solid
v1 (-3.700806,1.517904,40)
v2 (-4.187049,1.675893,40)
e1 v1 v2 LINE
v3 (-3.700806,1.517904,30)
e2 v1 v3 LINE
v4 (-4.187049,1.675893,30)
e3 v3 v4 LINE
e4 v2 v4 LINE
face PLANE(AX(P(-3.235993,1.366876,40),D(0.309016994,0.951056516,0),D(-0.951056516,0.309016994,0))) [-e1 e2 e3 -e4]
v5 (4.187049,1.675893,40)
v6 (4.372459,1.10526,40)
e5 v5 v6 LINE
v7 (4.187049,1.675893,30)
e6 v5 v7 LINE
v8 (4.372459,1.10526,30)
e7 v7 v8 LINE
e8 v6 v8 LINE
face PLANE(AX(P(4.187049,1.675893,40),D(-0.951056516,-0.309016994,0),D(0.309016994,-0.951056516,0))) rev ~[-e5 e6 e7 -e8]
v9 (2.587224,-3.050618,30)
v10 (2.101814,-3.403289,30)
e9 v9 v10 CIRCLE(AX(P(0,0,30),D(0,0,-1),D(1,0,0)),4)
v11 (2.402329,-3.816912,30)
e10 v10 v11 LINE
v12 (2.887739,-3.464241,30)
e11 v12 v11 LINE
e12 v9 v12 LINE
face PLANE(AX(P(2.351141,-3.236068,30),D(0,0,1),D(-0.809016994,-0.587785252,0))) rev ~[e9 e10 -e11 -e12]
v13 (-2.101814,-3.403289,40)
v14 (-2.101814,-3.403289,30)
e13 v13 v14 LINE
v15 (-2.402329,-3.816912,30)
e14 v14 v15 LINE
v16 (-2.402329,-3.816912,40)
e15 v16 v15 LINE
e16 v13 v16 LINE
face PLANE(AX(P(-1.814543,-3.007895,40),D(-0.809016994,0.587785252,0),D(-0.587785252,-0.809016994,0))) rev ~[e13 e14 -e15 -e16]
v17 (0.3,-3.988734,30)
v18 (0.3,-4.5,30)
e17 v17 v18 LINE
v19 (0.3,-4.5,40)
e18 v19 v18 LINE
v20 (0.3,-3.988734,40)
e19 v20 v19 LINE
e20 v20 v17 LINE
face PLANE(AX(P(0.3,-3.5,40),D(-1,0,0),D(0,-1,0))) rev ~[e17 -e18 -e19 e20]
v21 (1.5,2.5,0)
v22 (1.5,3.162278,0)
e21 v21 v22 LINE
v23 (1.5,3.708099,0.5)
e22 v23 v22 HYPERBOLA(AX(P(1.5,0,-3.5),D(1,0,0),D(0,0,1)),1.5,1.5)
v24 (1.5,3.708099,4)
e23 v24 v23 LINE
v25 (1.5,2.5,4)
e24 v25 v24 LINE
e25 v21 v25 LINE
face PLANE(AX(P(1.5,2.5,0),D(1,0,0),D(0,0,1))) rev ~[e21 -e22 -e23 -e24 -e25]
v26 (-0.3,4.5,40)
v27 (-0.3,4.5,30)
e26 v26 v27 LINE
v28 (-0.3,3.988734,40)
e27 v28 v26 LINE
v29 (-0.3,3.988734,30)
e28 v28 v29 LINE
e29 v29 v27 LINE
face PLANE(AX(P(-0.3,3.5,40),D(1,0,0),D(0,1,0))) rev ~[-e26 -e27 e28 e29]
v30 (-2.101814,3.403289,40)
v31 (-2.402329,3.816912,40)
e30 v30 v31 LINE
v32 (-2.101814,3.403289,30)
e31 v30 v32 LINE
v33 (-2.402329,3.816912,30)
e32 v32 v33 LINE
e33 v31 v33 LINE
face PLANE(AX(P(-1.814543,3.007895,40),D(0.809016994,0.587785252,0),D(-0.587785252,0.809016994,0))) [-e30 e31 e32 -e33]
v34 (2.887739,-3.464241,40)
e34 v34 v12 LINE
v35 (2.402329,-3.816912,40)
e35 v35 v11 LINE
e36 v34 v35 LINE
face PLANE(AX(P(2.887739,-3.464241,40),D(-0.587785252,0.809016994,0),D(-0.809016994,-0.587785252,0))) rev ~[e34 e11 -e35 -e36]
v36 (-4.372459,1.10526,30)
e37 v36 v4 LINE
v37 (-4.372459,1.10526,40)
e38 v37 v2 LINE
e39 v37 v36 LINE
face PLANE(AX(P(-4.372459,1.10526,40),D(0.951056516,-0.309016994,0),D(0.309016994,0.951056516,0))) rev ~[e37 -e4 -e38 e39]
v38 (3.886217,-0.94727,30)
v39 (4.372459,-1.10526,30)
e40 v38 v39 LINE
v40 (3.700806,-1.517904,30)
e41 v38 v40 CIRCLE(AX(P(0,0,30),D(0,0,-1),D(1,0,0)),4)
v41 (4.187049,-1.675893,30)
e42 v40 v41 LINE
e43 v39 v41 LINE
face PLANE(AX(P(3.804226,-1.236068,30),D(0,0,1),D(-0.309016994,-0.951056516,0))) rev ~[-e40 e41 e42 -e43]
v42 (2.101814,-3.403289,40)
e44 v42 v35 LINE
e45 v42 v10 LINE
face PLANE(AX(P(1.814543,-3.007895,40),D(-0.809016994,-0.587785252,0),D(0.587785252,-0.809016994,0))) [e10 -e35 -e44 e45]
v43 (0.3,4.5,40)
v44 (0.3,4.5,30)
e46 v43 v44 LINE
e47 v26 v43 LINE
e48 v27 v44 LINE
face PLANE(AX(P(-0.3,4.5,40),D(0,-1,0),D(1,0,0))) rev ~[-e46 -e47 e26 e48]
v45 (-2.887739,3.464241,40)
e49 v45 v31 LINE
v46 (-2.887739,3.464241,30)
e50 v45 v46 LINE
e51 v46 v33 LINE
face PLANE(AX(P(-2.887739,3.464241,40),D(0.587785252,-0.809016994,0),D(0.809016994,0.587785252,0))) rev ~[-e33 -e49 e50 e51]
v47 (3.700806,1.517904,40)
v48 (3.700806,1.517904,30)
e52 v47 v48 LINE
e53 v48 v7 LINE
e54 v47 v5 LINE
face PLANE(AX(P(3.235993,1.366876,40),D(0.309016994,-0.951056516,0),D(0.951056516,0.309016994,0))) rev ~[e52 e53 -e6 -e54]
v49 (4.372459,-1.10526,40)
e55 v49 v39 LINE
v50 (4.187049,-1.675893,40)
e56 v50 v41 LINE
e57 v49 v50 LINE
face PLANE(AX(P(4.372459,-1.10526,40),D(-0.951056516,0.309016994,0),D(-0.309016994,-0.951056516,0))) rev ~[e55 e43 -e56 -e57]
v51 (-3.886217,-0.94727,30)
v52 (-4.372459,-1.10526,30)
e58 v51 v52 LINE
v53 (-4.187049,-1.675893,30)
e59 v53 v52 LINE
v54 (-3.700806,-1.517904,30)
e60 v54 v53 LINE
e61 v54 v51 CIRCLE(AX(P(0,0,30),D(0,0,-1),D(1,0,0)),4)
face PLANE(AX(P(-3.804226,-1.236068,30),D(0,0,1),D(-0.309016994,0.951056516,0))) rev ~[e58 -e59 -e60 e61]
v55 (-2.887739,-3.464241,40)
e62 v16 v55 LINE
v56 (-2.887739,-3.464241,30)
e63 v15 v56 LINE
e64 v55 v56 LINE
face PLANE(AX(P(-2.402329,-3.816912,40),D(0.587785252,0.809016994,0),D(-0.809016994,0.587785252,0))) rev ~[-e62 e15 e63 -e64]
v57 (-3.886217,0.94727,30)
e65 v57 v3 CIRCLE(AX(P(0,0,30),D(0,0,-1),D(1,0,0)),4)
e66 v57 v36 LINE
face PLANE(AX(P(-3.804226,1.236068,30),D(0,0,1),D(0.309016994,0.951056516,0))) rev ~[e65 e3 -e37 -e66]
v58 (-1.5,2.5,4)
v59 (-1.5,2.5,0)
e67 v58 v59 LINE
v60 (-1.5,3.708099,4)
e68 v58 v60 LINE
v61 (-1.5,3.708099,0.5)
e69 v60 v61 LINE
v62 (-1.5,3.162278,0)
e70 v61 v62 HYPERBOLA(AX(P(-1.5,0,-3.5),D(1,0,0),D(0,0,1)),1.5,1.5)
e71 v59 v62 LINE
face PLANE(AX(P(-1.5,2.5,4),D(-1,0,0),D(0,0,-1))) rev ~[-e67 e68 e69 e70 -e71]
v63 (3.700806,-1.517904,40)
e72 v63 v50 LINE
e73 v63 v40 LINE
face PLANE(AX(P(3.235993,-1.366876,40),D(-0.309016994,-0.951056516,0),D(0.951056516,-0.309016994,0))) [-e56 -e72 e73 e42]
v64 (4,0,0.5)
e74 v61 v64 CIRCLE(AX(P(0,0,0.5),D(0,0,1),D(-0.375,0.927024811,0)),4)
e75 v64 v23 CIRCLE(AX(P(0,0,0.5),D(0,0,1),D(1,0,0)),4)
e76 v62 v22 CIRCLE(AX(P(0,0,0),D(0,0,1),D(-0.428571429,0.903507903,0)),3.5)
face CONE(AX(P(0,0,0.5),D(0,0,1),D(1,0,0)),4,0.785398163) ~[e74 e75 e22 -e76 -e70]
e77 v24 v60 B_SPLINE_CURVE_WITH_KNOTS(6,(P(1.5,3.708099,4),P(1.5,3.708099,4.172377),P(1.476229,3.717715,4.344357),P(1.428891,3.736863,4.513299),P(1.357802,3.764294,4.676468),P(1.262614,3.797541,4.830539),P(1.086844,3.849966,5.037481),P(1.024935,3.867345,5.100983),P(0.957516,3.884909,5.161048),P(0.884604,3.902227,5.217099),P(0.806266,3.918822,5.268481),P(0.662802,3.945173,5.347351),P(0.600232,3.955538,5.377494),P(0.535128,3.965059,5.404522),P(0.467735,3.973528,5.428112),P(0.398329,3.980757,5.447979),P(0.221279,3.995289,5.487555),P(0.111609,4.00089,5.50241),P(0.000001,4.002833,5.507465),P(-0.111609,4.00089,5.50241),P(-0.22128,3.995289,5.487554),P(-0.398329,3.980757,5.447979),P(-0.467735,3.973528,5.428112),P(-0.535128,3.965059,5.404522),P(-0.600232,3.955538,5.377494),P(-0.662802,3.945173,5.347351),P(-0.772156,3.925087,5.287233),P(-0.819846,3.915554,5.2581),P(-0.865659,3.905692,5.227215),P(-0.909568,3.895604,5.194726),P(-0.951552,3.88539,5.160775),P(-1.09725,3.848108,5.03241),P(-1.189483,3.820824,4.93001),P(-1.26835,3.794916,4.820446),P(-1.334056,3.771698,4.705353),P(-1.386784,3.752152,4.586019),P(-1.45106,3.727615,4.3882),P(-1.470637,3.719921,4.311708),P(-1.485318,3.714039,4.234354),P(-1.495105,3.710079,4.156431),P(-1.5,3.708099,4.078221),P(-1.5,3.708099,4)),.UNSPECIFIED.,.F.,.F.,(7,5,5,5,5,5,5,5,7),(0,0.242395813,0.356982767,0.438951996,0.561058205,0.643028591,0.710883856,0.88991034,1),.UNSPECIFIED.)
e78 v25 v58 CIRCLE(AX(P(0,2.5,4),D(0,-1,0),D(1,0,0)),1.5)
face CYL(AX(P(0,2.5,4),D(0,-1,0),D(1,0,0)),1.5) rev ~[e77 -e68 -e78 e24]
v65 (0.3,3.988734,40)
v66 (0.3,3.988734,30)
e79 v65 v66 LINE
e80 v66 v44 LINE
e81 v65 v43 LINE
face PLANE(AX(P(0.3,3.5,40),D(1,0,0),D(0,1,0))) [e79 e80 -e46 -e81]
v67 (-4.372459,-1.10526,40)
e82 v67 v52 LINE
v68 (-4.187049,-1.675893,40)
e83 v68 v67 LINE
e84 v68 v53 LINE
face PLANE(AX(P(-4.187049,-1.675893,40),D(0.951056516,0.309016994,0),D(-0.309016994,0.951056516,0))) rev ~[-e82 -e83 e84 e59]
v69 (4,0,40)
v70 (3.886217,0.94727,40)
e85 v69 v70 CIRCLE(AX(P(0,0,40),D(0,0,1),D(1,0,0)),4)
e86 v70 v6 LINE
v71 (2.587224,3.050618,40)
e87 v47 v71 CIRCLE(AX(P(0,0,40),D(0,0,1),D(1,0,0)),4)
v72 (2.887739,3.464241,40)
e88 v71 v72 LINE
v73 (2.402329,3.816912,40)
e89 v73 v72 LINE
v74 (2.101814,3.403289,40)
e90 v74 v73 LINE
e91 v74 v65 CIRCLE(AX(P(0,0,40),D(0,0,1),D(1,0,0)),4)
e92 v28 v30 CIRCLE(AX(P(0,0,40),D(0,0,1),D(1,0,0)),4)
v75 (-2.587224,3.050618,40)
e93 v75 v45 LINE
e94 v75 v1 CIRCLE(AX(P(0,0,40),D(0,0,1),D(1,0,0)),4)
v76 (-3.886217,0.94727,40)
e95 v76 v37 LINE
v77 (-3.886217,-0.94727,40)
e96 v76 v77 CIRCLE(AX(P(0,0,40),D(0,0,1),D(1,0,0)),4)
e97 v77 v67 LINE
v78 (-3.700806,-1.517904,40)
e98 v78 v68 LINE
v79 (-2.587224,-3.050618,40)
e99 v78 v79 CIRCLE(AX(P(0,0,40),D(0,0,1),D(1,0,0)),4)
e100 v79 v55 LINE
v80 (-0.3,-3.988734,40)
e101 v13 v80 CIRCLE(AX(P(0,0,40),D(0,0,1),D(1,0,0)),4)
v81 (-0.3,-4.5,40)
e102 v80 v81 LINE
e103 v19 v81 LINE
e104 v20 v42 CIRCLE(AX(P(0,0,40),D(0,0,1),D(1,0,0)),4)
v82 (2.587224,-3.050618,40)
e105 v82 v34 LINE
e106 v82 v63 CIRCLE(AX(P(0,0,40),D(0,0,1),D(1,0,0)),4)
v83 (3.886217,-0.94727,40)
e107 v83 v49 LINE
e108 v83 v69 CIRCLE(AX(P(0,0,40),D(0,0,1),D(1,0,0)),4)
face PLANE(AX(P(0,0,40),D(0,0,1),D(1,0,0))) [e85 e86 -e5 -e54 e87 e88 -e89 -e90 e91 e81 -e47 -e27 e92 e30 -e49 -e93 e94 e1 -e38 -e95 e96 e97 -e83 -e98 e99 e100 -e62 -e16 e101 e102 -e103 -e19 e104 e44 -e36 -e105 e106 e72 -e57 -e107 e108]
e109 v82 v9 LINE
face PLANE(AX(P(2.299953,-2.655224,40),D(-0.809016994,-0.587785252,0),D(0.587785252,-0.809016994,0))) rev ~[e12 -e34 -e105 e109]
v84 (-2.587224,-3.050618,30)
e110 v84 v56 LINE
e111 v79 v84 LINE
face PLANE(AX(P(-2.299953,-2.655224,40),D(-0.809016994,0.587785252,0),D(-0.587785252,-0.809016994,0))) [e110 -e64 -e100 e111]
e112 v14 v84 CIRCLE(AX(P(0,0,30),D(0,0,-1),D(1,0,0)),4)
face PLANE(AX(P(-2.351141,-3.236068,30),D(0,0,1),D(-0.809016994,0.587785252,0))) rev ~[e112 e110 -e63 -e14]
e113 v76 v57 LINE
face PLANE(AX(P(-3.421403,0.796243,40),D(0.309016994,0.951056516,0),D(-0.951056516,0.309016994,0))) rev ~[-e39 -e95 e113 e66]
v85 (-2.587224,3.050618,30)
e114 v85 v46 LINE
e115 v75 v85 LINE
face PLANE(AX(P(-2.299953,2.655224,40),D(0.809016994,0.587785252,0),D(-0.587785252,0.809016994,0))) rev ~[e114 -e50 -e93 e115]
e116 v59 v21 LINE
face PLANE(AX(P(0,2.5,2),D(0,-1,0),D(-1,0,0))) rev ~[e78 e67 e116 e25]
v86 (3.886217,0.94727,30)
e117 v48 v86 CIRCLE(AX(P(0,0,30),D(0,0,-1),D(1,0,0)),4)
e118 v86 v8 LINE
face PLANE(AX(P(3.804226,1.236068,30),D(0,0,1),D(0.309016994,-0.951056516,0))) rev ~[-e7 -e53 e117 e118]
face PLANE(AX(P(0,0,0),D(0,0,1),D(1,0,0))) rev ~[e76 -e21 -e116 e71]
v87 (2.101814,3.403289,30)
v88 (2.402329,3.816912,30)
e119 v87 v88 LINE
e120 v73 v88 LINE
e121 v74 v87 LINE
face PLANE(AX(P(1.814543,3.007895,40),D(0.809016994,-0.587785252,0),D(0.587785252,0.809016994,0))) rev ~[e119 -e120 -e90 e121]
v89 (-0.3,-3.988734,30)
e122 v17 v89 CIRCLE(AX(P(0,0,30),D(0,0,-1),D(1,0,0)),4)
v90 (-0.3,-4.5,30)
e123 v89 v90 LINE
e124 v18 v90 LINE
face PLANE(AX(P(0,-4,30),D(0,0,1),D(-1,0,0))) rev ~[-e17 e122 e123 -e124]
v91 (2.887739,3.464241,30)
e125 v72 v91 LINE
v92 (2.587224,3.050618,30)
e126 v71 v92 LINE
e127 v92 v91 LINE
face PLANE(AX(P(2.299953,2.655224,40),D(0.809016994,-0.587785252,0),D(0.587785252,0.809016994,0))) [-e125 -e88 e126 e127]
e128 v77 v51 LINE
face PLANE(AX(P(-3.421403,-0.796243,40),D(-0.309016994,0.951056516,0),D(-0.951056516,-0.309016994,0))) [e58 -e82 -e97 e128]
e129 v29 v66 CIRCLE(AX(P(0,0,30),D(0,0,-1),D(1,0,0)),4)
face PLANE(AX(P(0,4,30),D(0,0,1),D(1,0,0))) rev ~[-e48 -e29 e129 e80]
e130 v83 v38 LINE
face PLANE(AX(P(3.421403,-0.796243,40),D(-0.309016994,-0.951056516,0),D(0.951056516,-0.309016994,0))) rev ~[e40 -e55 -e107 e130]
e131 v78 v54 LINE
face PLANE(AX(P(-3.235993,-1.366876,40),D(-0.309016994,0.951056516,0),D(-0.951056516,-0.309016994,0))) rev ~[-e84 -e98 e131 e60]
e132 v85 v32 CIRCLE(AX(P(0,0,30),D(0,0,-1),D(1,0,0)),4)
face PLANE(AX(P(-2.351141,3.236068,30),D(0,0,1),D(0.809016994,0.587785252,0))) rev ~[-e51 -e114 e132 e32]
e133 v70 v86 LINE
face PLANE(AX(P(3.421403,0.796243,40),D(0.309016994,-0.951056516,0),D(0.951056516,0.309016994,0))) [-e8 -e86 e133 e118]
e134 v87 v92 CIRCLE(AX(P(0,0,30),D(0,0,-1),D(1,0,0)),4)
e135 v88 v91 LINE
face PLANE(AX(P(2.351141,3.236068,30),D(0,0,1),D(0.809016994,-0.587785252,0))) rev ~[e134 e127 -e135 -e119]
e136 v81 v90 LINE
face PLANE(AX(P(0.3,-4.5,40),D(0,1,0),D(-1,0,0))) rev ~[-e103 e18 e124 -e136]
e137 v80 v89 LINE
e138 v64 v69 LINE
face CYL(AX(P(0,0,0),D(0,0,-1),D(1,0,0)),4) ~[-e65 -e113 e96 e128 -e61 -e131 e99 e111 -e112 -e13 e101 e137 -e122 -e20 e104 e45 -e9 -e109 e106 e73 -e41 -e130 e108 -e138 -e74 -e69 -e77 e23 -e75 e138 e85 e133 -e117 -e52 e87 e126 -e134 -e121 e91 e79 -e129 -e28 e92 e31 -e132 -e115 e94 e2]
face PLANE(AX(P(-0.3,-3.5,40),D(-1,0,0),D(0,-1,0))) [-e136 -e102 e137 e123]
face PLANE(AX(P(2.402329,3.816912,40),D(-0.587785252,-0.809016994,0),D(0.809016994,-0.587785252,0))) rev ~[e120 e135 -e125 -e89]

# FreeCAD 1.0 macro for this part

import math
import FreeCAD as App
import Part
import Sketcher
Q = App.Units.Quantity


def edges_at(feature, points):
    """Names of the edges that pass closest to the given points."""
    edges = feature.Shape.Edges
    near = lambda p: min(range(len(edges)), key=lambda i: edges[i].distToShape(Part.Vertex(*p))[0])
    return sorted({f"Edge{near(p) + 1}" for p in points})


def add_polygon(sketch, points):
    """Adds a closed chain of lines whose ends are joined by coincident constraints."""
    first, n = sketch.GeometryCount, len(points)
    for a, b in zip(points, points[1:] + points[:1]):
        sketch.addGeometry(Part.LineSegment(App.Vector(*a, 0), App.Vector(*b, 0)), False)
    for i in range(n):
        sketch.addConstraint(Sketcher.Constraint("Coincident", first + i, 2, first + (i + 1) % n, 1))

doc = App.newDocument("Part")
params = doc.addObject("Spreadsheet::Sheet", "Params")
for row, (alias, value) in enumerate([
    ("sketch1_diameter", "8 mm"),
    ("pad1_length", "40 mm"),
    ("sketch2_radius", "1.5 mm"),
    ("sketch2_height", "4 mm"),
    ("chamfer_size", "0.5 mm"),
    ("sketch3_height", "1 mm"),
    ("sketch3_width", "0.6 mm"),
    ("pad2_length", "10 mm"),
], start=1):
    params.set(f"A{row}", alias)
    params.set(f"B{row}", "=" + value)
    params.setAlias(f"B{row}", alias)

body = doc.addObject("PartDesign::Body", "Body")

sketch1 = body.newObject("Sketcher::SketchObject", "Sketch")
sketch1.AttachmentSupport = (doc.getObject("XY_Plane"), [""])
sketch1.MapMode = "FlatFace"
sketch1.addGeometry(Part.Circle(App.Vector(0, 0, 0), App.Vector(0, 0, 1), 4), False)
sketch1.addConstraint([
    Sketcher.Constraint("Coincident", 0, 3, -1, 1),
    Sketcher.Constraint("Diameter", 0, Q("8 mm")),
])
sketch1.setExpression("Constraints[1]", "Params.sketch1_diameter")
pad1 = body.newObject("PartDesign::Pad", "Pad")
pad1.Profile = sketch1
pad1.setExpression("Length", "Params.pad1_length")

sketch2 = body.newObject("Sketcher::SketchObject", "Sketch001")
sketch2.AttachmentSupport = (doc.getObject("XZ_Plane"), [""])
sketch2.MapMode = "FlatFace"
sketch2.AttachmentOffset = App.Placement(App.Vector(0, 0, -2.5), App.Rotation())
sketch2.addGeometry([
    Part.LineSegment(App.Vector(1.5, 4, 0), App.Vector(1.5, 0, 0)),
    Part.ArcOfCircle(Part.Circle(App.Vector(0, 0, 0), App.Vector(0, 0, 1), 1.5), math.radians(180), math.radians(360)),
    Part.LineSegment(App.Vector(-1.5, 0, 0), App.Vector(-1.5, 4, 0)),
    Part.ArcOfCircle(Part.Circle(App.Vector(0, 4, 0), App.Vector(0, 0, 1), 1.5), math.radians(0), math.radians(180)),
], False)
sketch2.addConstraint([
    Sketcher.Constraint("Tangent", 0, 2, 1, 2),
    Sketcher.Constraint("Tangent", 1, 1, 2, 1),
    Sketcher.Constraint("Tangent", 2, 2, 3, 2),
    Sketcher.Constraint("Tangent", 3, 1, 0, 1),
    Sketcher.Constraint("Vertical", 0),
    Sketcher.Constraint("Vertical", 2),
    Sketcher.Constraint("Coincident", 1, 3, -1, 1),
    Sketcher.Constraint("Radius", 1, Q("1.5 mm")),
    Sketcher.Constraint("DistanceY", 0, 2, 0, 1, Q("4 mm")),
])
sketch2.setExpression("Constraints[7]", "Params.sketch2_radius")
sketch2.setExpression("Constraints[8]", "Params.sketch2_height")
pocket1 = body.newObject("PartDesign::Pocket", "Pocket")
pocket1.Profile = sketch2
pocket1.Type = "ThroughAll"
doc.recompute()

chamfer = body.newObject("PartDesign::Chamfer", "Chamfer")
chamfer.Base = (pocket1, edges_at(pocket1, [(-2.236, -3.317, 0)]))
chamfer.setExpression("Size", "Params.chamfer_size")

sketch3 = body.newObject("Sketcher::SketchObject", "Sketch002")
sketch3.AttachmentSupport = (doc.getObject("XY_Plane"), [""])
sketch3.MapMode = "FlatFace"
sketch3.AttachmentOffset = App.Placement(App.Vector(0, 0, 40), App.Rotation())
add_polygon(sketch3, [(-0.3, 4.5), (-0.3, 3.5), (0.3, 3.5), (0.3, 4.5)])
sketch3.addConstraint([
    Sketcher.Constraint("Vertical", 0),
    Sketcher.Constraint("Horizontal", 1),
    Sketcher.Constraint("Vertical", 2),
    Sketcher.Constraint("Horizontal", 3),
    Sketcher.Constraint("DistanceY", 0, 2, 0, 1, Q("1 mm")),
    Sketcher.Constraint("DistanceX", 1, 1, 1, 2, Q("0.6 mm")),
    Sketcher.Constraint("DistanceX", 0, 2, -1, 1, Q("0.3 mm")),
    Sketcher.Constraint("DistanceY", -1, 1, 0, 2, Q("3.5 mm")),
])
sketch3.setExpression("Constraints[8]", "Params.sketch3_height")
sketch3.setExpression("Constraints[9]", "Params.sketch3_width")
pad2 = body.newObject("PartDesign::Pad", "Pad001")
pad2.Profile = sketch3
pad2.setExpression("Length", "Params.pad2_length")
pad2.Reversed = True
doc.recompute()

polarpattern = body.newObject("PartDesign::PolarPattern", "PolarPattern")
polarpattern.Originals = [pad2]
polarpattern.Axis = (doc.getObject("Z_Axis"), [""])
polarpattern.Angle = 360
polarpattern.Occurrences = 10
body.Tip = polarpattern

doc.recompute()
